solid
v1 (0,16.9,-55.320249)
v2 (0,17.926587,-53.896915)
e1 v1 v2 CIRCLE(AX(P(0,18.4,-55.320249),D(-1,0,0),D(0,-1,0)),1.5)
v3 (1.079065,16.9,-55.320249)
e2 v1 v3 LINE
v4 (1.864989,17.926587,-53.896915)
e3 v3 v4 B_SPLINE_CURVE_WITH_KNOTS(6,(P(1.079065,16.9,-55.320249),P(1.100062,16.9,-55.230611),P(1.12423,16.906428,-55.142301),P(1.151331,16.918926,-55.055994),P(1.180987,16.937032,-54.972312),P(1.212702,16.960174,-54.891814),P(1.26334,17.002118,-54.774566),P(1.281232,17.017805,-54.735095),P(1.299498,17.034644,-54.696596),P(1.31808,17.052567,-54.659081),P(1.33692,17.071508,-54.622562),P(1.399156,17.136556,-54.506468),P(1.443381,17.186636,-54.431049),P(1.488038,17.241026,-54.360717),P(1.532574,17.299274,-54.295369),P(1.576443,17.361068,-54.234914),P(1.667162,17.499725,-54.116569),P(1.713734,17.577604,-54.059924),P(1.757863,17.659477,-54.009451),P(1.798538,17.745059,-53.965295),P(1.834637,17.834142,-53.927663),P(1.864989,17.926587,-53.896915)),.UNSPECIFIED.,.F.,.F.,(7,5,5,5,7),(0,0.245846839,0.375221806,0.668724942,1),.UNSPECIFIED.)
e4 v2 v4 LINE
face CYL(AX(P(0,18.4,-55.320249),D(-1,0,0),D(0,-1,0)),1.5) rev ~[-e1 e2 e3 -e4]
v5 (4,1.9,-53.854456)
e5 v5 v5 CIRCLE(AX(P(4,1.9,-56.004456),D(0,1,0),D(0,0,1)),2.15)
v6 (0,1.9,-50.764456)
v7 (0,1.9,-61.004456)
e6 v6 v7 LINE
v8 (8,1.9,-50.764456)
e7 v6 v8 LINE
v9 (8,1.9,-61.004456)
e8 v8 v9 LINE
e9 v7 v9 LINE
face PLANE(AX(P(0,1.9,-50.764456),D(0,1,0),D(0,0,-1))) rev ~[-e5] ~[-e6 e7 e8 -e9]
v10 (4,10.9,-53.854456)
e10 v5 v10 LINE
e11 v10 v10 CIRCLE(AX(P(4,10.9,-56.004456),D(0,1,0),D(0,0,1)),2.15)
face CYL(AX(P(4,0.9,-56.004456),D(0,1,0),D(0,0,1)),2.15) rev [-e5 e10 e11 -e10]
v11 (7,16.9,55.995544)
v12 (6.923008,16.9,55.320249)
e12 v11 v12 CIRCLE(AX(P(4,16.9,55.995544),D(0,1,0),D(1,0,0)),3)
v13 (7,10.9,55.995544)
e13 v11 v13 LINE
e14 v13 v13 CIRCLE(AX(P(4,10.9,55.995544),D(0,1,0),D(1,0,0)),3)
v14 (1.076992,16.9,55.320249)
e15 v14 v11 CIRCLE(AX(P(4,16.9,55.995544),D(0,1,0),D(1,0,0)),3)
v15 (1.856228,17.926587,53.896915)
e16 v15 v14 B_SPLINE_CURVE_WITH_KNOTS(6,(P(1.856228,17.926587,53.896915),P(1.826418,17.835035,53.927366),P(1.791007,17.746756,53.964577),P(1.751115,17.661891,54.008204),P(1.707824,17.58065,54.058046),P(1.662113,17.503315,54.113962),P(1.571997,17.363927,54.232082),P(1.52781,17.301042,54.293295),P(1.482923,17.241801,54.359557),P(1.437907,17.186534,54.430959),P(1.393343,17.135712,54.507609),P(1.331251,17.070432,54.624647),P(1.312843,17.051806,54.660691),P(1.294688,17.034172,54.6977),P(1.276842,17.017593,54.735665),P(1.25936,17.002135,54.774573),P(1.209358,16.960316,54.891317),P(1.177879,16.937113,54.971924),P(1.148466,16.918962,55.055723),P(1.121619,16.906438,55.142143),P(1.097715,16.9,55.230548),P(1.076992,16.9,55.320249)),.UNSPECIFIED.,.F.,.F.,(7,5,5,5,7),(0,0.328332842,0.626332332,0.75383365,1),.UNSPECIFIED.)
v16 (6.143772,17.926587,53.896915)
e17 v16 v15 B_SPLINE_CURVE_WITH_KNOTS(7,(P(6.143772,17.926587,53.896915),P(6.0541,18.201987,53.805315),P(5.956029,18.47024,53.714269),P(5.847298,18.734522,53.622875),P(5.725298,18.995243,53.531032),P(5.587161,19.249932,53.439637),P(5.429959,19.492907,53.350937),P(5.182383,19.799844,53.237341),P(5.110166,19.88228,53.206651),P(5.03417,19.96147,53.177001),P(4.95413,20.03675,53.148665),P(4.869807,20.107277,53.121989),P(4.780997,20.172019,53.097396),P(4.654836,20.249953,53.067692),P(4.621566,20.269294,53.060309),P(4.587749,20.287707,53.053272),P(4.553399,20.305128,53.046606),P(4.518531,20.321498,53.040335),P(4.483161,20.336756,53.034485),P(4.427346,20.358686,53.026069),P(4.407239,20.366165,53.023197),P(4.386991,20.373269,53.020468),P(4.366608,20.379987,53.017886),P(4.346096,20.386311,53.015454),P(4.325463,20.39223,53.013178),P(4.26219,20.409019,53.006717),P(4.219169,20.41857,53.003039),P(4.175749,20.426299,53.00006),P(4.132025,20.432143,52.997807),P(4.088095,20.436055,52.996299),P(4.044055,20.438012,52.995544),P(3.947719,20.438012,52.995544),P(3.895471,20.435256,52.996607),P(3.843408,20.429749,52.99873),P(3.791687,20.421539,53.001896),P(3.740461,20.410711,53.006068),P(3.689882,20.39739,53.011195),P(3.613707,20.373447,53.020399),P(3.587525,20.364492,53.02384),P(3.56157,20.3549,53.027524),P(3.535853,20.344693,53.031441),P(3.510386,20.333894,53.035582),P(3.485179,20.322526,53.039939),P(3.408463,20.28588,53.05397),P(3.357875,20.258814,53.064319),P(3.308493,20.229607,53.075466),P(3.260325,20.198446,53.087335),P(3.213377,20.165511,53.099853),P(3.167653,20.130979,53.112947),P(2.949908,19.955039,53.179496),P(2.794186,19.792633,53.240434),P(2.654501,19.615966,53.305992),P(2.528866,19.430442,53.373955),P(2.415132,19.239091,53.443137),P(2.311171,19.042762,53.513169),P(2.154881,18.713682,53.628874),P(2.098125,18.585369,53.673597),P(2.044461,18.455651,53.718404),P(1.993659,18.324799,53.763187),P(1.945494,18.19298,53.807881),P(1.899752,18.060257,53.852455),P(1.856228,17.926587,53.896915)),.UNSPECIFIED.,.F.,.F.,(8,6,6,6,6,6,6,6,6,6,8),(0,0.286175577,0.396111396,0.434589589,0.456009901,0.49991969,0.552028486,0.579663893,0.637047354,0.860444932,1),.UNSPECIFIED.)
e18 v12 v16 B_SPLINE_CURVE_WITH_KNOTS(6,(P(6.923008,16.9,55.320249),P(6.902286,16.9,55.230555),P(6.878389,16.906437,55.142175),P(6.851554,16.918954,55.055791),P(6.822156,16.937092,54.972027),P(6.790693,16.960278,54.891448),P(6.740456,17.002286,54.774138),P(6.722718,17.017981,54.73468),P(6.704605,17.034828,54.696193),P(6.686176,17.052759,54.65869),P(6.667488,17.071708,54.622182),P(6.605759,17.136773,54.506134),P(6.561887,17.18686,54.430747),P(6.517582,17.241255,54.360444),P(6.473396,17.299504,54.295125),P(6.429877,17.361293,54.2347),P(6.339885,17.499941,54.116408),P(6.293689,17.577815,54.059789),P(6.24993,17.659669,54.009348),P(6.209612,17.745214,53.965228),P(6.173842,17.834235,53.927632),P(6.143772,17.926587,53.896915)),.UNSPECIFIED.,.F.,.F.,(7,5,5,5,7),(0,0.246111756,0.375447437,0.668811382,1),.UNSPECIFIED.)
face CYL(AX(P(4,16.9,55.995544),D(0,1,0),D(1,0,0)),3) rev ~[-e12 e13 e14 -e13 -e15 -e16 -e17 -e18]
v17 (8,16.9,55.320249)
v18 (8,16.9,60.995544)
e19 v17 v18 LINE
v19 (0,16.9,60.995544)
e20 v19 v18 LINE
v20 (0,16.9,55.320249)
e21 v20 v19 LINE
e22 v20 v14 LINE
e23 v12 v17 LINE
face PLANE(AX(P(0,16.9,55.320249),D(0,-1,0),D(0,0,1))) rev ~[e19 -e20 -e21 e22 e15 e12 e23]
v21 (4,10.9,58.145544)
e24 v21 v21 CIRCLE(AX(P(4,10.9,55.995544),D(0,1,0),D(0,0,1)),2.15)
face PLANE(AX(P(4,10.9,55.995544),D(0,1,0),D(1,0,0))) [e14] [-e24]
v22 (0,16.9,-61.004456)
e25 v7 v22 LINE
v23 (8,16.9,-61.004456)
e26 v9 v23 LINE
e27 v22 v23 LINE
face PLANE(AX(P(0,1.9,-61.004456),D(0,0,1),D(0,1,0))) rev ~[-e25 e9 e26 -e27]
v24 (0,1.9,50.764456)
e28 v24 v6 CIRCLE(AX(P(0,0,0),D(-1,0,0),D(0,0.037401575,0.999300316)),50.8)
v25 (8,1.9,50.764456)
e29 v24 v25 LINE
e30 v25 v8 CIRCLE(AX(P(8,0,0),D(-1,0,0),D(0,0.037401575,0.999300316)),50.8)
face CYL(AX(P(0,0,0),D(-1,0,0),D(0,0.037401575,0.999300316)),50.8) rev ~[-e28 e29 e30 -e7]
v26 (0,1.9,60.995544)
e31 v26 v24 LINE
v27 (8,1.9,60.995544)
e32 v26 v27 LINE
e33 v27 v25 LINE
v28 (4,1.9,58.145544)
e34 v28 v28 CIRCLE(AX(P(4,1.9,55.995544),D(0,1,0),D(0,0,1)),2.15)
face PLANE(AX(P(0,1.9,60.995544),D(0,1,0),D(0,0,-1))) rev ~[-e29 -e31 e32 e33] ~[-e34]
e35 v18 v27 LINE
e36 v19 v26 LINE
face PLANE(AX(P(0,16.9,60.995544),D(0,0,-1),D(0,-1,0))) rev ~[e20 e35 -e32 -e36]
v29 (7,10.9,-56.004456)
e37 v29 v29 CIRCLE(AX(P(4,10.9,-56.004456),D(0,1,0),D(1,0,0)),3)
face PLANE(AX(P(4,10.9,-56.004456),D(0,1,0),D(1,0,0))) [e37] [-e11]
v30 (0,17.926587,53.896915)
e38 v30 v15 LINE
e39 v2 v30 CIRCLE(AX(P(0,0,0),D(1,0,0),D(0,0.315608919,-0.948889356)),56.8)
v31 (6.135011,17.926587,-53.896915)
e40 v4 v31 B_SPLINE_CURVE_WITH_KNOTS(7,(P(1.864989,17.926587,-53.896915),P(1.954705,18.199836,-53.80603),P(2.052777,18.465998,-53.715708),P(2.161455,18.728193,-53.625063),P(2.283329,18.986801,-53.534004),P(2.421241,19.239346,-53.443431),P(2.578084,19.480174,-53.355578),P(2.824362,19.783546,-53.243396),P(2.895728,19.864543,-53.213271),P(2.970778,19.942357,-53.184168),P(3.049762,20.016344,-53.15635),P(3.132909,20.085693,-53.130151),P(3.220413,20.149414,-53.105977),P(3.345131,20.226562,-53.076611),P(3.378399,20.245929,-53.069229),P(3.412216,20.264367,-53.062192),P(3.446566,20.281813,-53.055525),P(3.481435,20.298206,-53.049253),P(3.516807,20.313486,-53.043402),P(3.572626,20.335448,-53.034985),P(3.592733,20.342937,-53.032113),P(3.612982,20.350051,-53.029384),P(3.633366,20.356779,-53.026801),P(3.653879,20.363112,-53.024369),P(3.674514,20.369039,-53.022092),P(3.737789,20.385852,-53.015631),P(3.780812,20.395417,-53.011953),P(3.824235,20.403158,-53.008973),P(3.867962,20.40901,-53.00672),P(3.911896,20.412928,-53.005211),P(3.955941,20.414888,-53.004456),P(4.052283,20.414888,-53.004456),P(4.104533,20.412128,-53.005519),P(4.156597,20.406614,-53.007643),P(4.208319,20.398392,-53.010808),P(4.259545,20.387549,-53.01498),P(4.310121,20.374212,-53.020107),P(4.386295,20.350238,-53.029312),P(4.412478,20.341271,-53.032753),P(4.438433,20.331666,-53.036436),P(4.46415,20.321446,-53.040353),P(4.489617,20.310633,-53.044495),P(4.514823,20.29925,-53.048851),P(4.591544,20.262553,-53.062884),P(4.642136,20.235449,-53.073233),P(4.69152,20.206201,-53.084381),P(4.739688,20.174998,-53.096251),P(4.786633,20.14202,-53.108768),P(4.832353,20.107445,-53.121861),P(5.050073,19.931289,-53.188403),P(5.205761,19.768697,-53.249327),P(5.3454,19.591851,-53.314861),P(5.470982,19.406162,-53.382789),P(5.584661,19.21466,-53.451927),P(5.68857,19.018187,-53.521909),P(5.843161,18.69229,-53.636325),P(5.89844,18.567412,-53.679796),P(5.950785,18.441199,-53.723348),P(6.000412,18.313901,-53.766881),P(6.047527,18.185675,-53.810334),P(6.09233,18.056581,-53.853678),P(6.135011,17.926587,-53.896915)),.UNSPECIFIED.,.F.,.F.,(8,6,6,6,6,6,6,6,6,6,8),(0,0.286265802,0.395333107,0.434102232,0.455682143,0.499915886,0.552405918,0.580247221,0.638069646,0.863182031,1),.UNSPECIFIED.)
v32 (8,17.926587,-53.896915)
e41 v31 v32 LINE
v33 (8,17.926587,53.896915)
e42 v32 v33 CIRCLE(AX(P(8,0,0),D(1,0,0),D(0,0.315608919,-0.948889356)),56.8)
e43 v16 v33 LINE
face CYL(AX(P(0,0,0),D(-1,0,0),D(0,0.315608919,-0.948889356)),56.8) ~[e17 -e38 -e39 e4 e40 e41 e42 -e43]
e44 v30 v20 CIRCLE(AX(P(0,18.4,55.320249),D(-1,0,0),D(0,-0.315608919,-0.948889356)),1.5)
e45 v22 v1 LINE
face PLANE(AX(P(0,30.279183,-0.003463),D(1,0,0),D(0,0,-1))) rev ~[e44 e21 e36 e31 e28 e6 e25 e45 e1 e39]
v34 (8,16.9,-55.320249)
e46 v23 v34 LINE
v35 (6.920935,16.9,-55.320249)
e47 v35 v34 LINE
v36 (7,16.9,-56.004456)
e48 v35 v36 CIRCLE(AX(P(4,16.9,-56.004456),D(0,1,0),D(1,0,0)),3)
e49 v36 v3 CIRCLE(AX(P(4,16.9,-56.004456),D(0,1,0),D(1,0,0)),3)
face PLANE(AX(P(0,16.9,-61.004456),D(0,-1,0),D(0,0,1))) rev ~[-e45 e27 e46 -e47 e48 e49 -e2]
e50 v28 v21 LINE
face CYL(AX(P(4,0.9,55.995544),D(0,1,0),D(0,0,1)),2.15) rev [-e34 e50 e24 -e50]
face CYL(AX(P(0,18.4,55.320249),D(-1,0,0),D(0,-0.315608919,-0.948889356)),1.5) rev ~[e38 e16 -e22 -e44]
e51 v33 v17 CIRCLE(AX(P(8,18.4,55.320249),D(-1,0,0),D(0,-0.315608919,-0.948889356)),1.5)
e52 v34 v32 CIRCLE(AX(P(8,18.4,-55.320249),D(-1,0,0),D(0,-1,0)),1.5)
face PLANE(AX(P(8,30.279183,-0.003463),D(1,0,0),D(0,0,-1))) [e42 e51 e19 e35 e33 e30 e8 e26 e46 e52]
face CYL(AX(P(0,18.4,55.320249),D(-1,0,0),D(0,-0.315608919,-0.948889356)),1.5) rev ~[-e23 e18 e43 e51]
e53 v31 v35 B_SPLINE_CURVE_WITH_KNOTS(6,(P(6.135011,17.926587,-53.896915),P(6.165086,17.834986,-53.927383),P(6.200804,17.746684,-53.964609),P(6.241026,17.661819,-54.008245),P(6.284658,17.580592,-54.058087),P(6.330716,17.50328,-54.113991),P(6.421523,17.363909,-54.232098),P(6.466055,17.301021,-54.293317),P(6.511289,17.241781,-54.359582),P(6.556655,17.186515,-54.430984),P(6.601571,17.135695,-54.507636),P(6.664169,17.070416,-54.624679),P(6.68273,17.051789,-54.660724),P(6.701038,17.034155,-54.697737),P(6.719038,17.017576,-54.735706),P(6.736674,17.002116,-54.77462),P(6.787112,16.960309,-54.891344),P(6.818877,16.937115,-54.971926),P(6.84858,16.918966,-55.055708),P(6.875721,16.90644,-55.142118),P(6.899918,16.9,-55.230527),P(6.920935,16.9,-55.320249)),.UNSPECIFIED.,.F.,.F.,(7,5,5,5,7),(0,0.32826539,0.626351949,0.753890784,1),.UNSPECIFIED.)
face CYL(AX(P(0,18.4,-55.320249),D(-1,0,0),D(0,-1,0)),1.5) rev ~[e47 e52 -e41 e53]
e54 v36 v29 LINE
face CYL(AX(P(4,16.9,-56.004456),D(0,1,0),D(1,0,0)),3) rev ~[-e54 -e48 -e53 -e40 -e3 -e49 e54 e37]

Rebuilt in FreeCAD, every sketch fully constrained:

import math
import FreeCAD as App
import Part
import Sketcher
Q = App.Units.Quantity

doc = App.newDocument("Part")
params = doc.addObject("Spreadsheet::Sheet", "Params")
for row, (alias, value) in enumerate([
    ("sketch1_radius", "50.8 mm"),
    ("sketch1_radius2", "1.5 mm"),
    ("sketch1_radius3", "56.8 mm"),
    ("sketch1_width", "15 mm"),
    ("sketch1_height", "10.24 mm"),
    ("pad1_length", "8 mm"),
    ("sketch2_width", "16 mm"),
    ("sketch2_height", "2.15 mm"),
    ("groove_angle", "360 deg"),
    ("linearpattern_pitch", "112 mm"),
    ("sketch3_diameter", "6 mm"),
    ("pocket1_length", "10 mm"),
    ("pocket1_length2", "6 mm"),
], start=1):
    params.set(f"A{row}", alias)
    params.set(f"B{row}", "=" + value)
    params.setAlias(f"B{row}", alias)

body = doc.addObject("PartDesign::Body", "Body")

# Sketch on YZ plane
sketch1 = doc.addObject("Sketcher::SketchObject", "Sketch")
body.addObject(sketch1)
sketch1.AttachmentSupport = (doc.YZ_Plane, [""])
sketch1.MapMode = "FlatFace"
sketch1.addGeometry(Part.LineSegment(App.Vector(1.9, 61, 0), App.Vector(1.9, 50.8, 0)), False)
sketch1.addGeometry(Part.ArcOfCircle(Part.Circle(App.Vector(0, 0, 0), App.Vector(0, 0, 1), 50.8), math.radians(-88), math.radians(88)), False)
sketch1.addGeometry(Part.LineSegment(App.Vector(1.9, -50.8, 0), App.Vector(1.9, -61, 0)), False)
sketch1.addGeometry(Part.LineSegment(App.Vector(1.9, -61, 0), App.Vector(16.9, -61, 0)), False)
sketch1.addGeometry(Part.LineSegment(App.Vector(16.9, -61, 0), App.Vector(16.9, -55.3, 0)), False)
sketch1.addGeometry(Part.ArcOfCircle(Part.Circle(App.Vector(18.4, -55.3, 0), App.Vector(0, 0, 1), 1.5), math.radians(108), math.radians(180)), False)
sketch1.addGeometry(Part.ArcOfCircle(Part.Circle(App.Vector(0, 0, 0), App.Vector(0, 0, 1), 56.8), math.radians(-72), math.radians(72)), False)
sketch1.addGeometry(Part.ArcOfCircle(Part.Circle(App.Vector(18.4, 55.3, 0), App.Vector(0, 0, 1), 1.5), math.radians(180), math.radians(252)), False)
sketch1.addGeometry(Part.LineSegment(App.Vector(16.9, 55.3, 0), App.Vector(16.9, 61, 0)), False)
sketch1.addGeometry(Part.LineSegment(App.Vector(16.9, 61, 0), App.Vector(1.9, 61, 0)), False)
sketch1.addConstraint(Sketcher.Constraint("Coincident", 0, 2, 1, 2))
sketch1.addConstraint(Sketcher.Constraint("Coincident", 1, 1, 2, 1))
sketch1.addConstraint(Sketcher.Constraint("Coincident", 2, 2, 3, 1))
sketch1.addConstraint(Sketcher.Constraint("Coincident", 3, 2, 4, 1))
sketch1.addConstraint(Sketcher.Constraint("Tangent", 4, 2, 5, 2))
sketch1.addConstraint(Sketcher.Constraint("Tangent", 5, 1, 6, 1))
sketch1.addConstraint(Sketcher.Constraint("Tangent", 6, 2, 7, 2))
sketch1.addConstraint(Sketcher.Constraint("Tangent", 7, 1, 8, 1))
sketch1.addConstraint(Sketcher.Constraint("Coincident", 8, 2, 9, 1))
sketch1.addConstraint(Sketcher.Constraint("Coincident", 9, 2, 0, 1))
sketch1.addConstraint(Sketcher.Constraint("Vertical", 0))
sketch1.addConstraint(Sketcher.Constraint("Vertical", 2))
sketch1.addConstraint(Sketcher.Constraint("Horizontal", 3))
sketch1.addConstraint(Sketcher.Constraint("Vertical", 4))
sketch1.addConstraint(Sketcher.Constraint("Vertical", 8))
sketch1.addConstraint(Sketcher.Constraint("Horizontal", 9))
sketch1.addConstraint(Sketcher.Constraint("Coincident", 1, 3, -1, 1))
sketch1.addConstraint(Sketcher.Constraint("Coincident", 6, 3, -1, 1))
sketch1.addConstraint(Sketcher.Constraint("Equal", 5, 7))
sketch1.addConstraint(Sketcher.Constraint("Vertical", 5, 3, 7, 3))
sketch1.addConstraint(Sketcher.Constraint("Vertical", 0, 2, 1, 1))
sketch1.addConstraint(Sketcher.Constraint("Radius", 1, 50.8))
sketch1.addConstraint(Sketcher.Constraint("Radius", 5, 1.5))
sketch1.addConstraint(Sketcher.Constraint("Radius", 6, 56.8))
sketch1.addConstraint(Sketcher.Constraint("DistanceX", 3, 1, 3, 2, 15.0))
sketch1.addConstraint(Sketcher.Constraint("DistanceY", 2, 2, 2, 1, 10.24))
sketch1.addConstraint(Sketcher.Constraint("DistanceX", -1, 1, 5, 3, 18.4))
sketch1.addConstraint(Sketcher.Constraint("DistanceY", 0, 2, 0, 1, 10.231088))
sketch1.setExpression("Constraints[21]", "Params.sketch1_radius")
sketch1.setExpression("Constraints[22]", "Params.sketch1_radius2")
sketch1.setExpression("Constraints[23]", "Params.sketch1_radius3")
sketch1.setExpression("Constraints[24]", "Params.sketch1_width")
sketch1.setExpression("Constraints[25]", "Params.sketch1_height")
pad1 = doc.addObject("PartDesign::Pad", "Pad")
body.addObject(pad1)
pad1.Profile = sketch1
pad1.setExpression("Length", "Params.pad1_length")

# Sketch on YZ plane
sketch2 = doc.addObject("Sketcher::SketchObject", "Sketch001")
body.addObject(sketch2)
sketch2.AttachmentSupport = (doc.YZ_Plane, [""])
sketch2.MapMode = "FlatFace"
sketch2.AttachmentOffset = App.Placement(App.Vector(0, 0, 4), App.Rotation())
sketch2.addGeometry(Part.LineSegment(App.Vector(-0.4, -56, 0), App.Vector(16.9, -56, 0)), False)
sketch2.addGeometry(Part.LineSegment(App.Vector(16.9, -56, 0), App.Vector(16.9, -53.9, 0)), False)
sketch2.addGeometry(Part.LineSegment(App.Vector(16.9, -53.9, 0), App.Vector(0.9, -53.9, 0)), False)
sketch2.addGeometry(Part.LineSegment(App.Vector(0.9, -53.9, 0), App.Vector(-0.4, -56, 0)), False)
sketch2.addGeometry(Part.LineSegment(App.Vector(16.9, -56, 0), App.Vector(-0.4, -56, 0)), True)  # axis
sketch2.addConstraint(Sketcher.Constraint("Coincident", 0, 2, 1, 1))
sketch2.addConstraint(Sketcher.Constraint("Coincident", 1, 2, 2, 1))
sketch2.addConstraint(Sketcher.Constraint("Coincident", 2, 2, 3, 1))
sketch2.addConstraint(Sketcher.Constraint("Coincident", 3, 2, 0, 1))
sketch2.addConstraint(Sketcher.Constraint("Horizontal", 0))
sketch2.addConstraint(Sketcher.Constraint("Vertical", 1))
sketch2.addConstraint(Sketcher.Constraint("Horizontal", 2))
sketch2.addConstraint(Sketcher.Constraint("Horizontal", 4))
sketch2.addConstraint(Sketcher.Constraint("Coincident", 4, 1, 0, 2))
sketch2.addConstraint(Sketcher.Constraint("Equal", 0, 4))
sketch2.addConstraint(Sketcher.Constraint("DistanceX", 2, 2, 2, 1, 16.0))
sketch2.addConstraint(Sketcher.Constraint("Angle", 3, Q("-121 deg")))
sketch2.addConstraint(Sketcher.Constraint("DistanceY", 1, 1, 1, 2, 2.15))
sketch2.addConstraint(Sketcher.Constraint("DistanceX", -1, 1, 0, 2, 16.9))
sketch2.addConstraint(Sketcher.Constraint("DistanceY", 0, 2, -1, 1, 56.004456))
sketch2.setExpression("Constraints[10]", "Params.sketch2_width")
sketch2.setExpression("Constraints[12]", "Params.sketch2_height")
groove = doc.addObject("PartDesign::Groove", "Groove")
body.addObject(groove)
groove.Profile = sketch2
groove.ReferenceAxis = (sketch2, ["Axis0"])
groove.setExpression("Angle", "Params.groove_angle")
doc.recompute()

linearpattern = doc.addObject("PartDesign::LinearPattern", "LinearPattern")
body.addObject(linearpattern)
linearpattern.Originals = [groove]
linearpattern.Direction = (doc.Z_Axis, [""])
linearpattern.Mode = "offset"
linearpattern.setExpression("Offset", "Params.linearpattern_pitch")
linearpattern.Occurrences = 2
body.Tip = linearpattern

# Sketch on XZ plane
sketch3 = doc.addObject("Sketcher::SketchObject", "Sketch002")
body.addObject(sketch3)
sketch3.AttachmentSupport = (doc.XZ_Plane, [""])
sketch3.MapMode = "FlatFace"
sketch3.AttachmentOffset = App.Placement(App.Vector(0, 0, -16.9), App.Rotation())
sketch3.addGeometry(Part.Circle(App.Vector(4, -56, 0), App.Vector(0, 0, 1), 3), False)
sketch3.addGeometry(Part.Circle(App.Vector(4, 56, 0), App.Vector(0, 0, 1), 3), False)
sketch3.addConstraint(Sketcher.Constraint("Equal", 0, 1))
sketch3.addConstraint(Sketcher.Constraint("Vertical", 0, 3, 1, 3))
sketch3.addConstraint(Sketcher.Constraint("Diameter", 0, 6.0))
sketch3.addConstraint(Sketcher.Constraint("DistanceX", -1, 1, 0, 3, 4.0))
sketch3.addConstraint(Sketcher.Constraint("DistanceY", 0, 3, 1, 3, 112.0))
sketch3.addConstraint(Sketcher.Constraint("DistanceY", 0, 3, -1, 1, 56.004456))
sketch3.setExpression("Constraints[2]", "Params.sketch3_diameter")
pocket1 = doc.addObject("PartDesign::Pocket", "Pocket")
body.addObject(pocket1)
pocket1.Profile = sketch3
pocket1.Type = "TwoLengths"
pocket1.setExpression("Length", "Params.pocket1_length")
pocket1.setExpression("Length2", "Params.pocket1_length2")

doc.recompute()
